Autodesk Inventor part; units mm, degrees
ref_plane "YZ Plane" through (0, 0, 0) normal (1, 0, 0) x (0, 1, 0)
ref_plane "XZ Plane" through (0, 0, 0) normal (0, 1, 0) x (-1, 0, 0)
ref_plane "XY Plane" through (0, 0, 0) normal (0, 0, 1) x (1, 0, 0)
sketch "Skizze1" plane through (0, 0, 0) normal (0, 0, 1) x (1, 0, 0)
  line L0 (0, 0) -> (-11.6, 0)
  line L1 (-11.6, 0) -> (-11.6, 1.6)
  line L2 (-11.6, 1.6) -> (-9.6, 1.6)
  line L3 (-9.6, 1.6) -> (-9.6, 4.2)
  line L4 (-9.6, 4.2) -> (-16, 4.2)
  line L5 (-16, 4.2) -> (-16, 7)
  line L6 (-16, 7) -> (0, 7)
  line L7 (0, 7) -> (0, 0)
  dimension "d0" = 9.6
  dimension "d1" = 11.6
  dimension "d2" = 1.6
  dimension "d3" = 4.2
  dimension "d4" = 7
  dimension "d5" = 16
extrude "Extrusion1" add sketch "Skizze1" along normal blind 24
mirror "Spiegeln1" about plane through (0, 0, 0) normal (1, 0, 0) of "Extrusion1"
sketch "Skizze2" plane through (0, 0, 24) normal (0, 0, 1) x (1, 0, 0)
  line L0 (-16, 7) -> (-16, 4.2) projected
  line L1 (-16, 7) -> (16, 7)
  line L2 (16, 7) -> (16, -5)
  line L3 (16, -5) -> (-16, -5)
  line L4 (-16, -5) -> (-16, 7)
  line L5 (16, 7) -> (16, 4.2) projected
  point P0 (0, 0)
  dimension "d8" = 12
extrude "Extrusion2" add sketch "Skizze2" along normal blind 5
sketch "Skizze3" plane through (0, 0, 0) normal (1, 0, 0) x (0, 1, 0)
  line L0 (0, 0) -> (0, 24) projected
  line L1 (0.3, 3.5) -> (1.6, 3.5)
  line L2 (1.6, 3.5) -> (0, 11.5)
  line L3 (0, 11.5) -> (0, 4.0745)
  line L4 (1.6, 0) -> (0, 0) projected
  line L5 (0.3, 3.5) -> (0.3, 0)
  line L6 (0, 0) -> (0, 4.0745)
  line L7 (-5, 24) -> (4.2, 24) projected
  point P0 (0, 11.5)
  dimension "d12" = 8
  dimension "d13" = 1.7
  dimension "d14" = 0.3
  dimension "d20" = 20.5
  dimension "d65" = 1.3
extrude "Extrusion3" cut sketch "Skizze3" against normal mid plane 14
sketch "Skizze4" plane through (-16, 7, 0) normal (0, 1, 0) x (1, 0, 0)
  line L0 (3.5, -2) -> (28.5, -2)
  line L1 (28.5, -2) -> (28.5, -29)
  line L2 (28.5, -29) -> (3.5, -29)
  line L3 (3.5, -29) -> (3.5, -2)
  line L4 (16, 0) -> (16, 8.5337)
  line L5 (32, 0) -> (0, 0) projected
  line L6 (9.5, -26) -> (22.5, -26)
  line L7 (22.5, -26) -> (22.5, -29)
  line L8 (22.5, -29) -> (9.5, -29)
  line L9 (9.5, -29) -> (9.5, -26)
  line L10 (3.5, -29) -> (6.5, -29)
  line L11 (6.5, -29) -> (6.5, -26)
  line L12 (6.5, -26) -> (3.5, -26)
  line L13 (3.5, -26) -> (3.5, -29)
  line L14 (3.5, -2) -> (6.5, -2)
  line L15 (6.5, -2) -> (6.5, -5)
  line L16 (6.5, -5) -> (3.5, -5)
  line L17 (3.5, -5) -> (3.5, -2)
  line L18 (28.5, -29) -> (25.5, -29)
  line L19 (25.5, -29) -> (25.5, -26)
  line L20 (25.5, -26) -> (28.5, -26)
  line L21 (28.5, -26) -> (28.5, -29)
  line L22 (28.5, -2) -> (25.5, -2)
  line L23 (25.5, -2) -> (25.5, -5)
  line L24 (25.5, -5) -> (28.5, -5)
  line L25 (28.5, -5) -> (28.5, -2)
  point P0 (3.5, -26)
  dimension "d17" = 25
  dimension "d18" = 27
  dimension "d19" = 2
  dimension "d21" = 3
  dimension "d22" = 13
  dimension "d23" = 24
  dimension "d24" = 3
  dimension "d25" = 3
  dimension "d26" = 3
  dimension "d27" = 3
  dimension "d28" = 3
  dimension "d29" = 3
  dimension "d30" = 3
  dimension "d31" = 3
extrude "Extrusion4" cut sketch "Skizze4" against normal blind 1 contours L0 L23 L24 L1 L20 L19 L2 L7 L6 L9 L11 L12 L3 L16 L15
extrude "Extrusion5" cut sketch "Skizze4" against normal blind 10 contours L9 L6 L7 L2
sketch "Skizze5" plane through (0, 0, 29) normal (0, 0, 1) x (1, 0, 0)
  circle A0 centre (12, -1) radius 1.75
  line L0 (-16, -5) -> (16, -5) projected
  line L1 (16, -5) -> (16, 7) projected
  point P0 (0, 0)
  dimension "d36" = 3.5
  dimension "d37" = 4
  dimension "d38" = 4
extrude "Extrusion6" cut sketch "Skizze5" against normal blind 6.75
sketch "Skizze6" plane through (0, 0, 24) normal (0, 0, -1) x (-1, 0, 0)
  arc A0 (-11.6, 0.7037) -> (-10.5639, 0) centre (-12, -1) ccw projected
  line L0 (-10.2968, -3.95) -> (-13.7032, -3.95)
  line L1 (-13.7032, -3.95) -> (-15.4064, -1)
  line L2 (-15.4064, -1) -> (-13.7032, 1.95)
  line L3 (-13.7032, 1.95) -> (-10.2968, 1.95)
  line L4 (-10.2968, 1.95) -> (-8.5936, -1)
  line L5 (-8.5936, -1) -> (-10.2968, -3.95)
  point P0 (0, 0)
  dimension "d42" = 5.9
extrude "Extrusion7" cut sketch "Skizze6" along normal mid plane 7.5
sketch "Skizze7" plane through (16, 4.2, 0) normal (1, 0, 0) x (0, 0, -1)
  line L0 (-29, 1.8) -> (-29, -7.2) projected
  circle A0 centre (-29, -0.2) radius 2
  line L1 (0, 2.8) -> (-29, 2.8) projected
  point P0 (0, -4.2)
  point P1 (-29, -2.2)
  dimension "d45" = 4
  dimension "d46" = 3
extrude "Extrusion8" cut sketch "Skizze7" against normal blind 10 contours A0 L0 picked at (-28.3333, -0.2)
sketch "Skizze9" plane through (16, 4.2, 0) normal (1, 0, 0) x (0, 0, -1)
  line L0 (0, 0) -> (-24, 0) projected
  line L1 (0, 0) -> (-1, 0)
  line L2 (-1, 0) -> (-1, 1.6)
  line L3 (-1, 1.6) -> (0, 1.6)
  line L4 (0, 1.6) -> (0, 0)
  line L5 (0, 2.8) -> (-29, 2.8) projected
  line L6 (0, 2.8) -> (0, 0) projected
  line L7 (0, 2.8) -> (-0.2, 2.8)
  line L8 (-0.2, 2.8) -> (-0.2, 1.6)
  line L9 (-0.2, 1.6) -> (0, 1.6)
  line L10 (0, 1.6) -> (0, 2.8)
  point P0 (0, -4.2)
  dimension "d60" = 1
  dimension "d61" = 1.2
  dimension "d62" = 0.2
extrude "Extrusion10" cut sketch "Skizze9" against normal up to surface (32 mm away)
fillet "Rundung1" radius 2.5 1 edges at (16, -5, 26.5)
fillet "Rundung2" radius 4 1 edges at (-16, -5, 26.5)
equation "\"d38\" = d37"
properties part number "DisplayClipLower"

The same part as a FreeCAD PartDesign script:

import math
import FreeCAD as App
import Part
import Sketcher
Q = App.Units.Quantity


def edges_at(feature, points):
    """Names of the edges that pass closest to the given points."""
    edges = feature.Shape.Edges
    near = lambda p: min(range(len(edges)), key=lambda i: edges[i].distToShape(Part.Vertex(*p))[0])
    return sorted({f"Edge{near(p) + 1}" for p in points})

doc = App.newDocument("Part")
body = doc.addObject("PartDesign::Body", "Body")

# Sketch on XY plane
sketch1 = body.newObject("Sketcher::SketchObject", "Sketch")
sketch1.AttachmentSupport = (doc.getObject("XY_Plane"), [""])
sketch1.MapMode = "FlatFace"
sketch1.addGeometry([
    Part.LineSegment(App.Vector(-11.6, 0, 0), App.Vector(0, 0, 0)),  # 0
    Part.LineSegment(App.Vector(0, 0, 0), App.Vector(0, 7, 0)),  # 1
    Part.LineSegment(App.Vector(0, 7, 0), App.Vector(-16, 7, 0)),  # 2
    Part.LineSegment(App.Vector(-16, 7, 0), App.Vector(-16, 4.2, 0)),  # 3
    Part.LineSegment(App.Vector(-16, 4.2, 0), App.Vector(-9.6, 4.2, 0)),  # 4
    Part.LineSegment(App.Vector(-9.6, 4.2, 0), App.Vector(-9.6, 1.6, 0)),  # 5
    Part.LineSegment(App.Vector(-9.6, 1.6, 0), App.Vector(-11.6, 1.6, 0)),  # 6
    Part.LineSegment(App.Vector(-11.6, 1.6, 0), App.Vector(-11.6, 0, 0)),  # 7
], False)
sketch1.addConstraint([
    Sketcher.Constraint("Coincident", 0, 2, 1, 1),
    Sketcher.Constraint("Coincident", 1, 2, 2, 1),
    Sketcher.Constraint("Coincident", 2, 2, 3, 1),
    Sketcher.Constraint("Coincident", 3, 2, 4, 1),
    Sketcher.Constraint("Coincident", 4, 2, 5, 1),
    Sketcher.Constraint("Coincident", 5, 2, 6, 1),
    Sketcher.Constraint("Coincident", 6, 2, 7, 1),
    Sketcher.Constraint("Coincident", 7, 2, 0, 1),
    Sketcher.Constraint("Horizontal", 0),
    Sketcher.Constraint("Vertical", 1),
    Sketcher.Constraint("Horizontal", 2),
    Sketcher.Constraint("Vertical", 3),
    Sketcher.Constraint("Horizontal", 4),
    Sketcher.Constraint("Vertical", 5),
    Sketcher.Constraint("Horizontal", 6),
    Sketcher.Constraint("Vertical", 7),
    Sketcher.Constraint("Coincident", 0, 2, -1, 1),
    Sketcher.Constraint("DistanceX", 2, 2, 2, 1, Q("16 mm")),
    Sketcher.Constraint("DistanceY", 1, 1, 1, 2, Q("7 mm")),
    Sketcher.Constraint("DistanceX", 0, 1, 0, 2, Q("11.6 mm")),
    Sketcher.Constraint("DistanceY", 7, 2, 7, 1, Q("1.6 mm")),
    Sketcher.Constraint("DistanceY", -1, 1, 3, 2, Q("4.2 mm")),
    Sketcher.Constraint("DistanceX", 4, 2, -1, 1, Q("9.6 mm")),
])
pad1 = body.newObject("PartDesign::Pad", "Pad")
pad1.Profile = sketch1
pad1.Length = 24
doc.recompute()

mirrored = body.newObject("PartDesign::Mirrored", "Mirrored")
mirrored.Originals = [pad1]
mirrored.MirrorPlane = (doc.getObject("YZ_Plane"), [""])
body.Tip = mirrored

# Sketch on XY plane
sketch2 = body.newObject("Sketcher::SketchObject", "Sketch001")
sketch2.AttachmentSupport = (doc.getObject("XY_Plane"), [""])
sketch2.MapMode = "FlatFace"
sketch2.AttachmentOffset = App.Placement(App.Vector(0, 0, 24), App.Rotation())
sketch2.addGeometry([
    Part.LineSegment(App.Vector(16, 7, 0), App.Vector(-16, 7, 0)),
    Part.LineSegment(App.Vector(-16, 7, 0), App.Vector(-16, -5, 0)),
    Part.LineSegment(App.Vector(-16, -5, 0), App.Vector(16, -5, 0)),
    Part.LineSegment(App.Vector(16, -5, 0), App.Vector(16, 7, 0)),
], False)
sketch2.addConstraint([
    Sketcher.Constraint("Coincident", 0, 2, 1, 1),
    Sketcher.Constraint("Coincident", 1, 2, 2, 1),
    Sketcher.Constraint("Coincident", 2, 2, 3, 1),
    Sketcher.Constraint("Coincident", 3, 2, 0, 1),
    Sketcher.Constraint("Horizontal", 0),
    Sketcher.Constraint("Vertical", 1),
    Sketcher.Constraint("Horizontal", 2),
    Sketcher.Constraint("Vertical", 3),
    Sketcher.Constraint("DistanceY", 1, 2, 1, 1, Q("12 mm")),
    Sketcher.Constraint("DistanceX", 0, 2, 0, 1, Q("32 mm")),
    Sketcher.Constraint("DistanceX", 0, 2, -1, 1, Q("16 mm")),
    Sketcher.Constraint("DistanceY", -1, 1, 0, 2, Q("7 mm")),
])
pad2 = body.newObject("PartDesign::Pad", "Pad001")
pad2.Profile = sketch2
pad2.Length = 5

# Sketch on YZ plane
sketch3 = body.newObject("Sketcher::SketchObject", "Sketch002")
sketch3.AttachmentSupport = (doc.getObject("YZ_Plane"), [""])
sketch3.MapMode = "FlatFace"
sketch3.addGeometry([
    Part.LineSegment(App.Vector(0, 11.5, 0), App.Vector(0, 0, 0)),  # 0
    Part.LineSegment(App.Vector(0, 0, 0), App.Vector(0.3, 0, 0)),  # 1
    Part.LineSegment(App.Vector(0.3, 0, 0), App.Vector(0.3, 3.5, 0)),  # 2
    Part.LineSegment(App.Vector(0.3, 3.5, 0), App.Vector(1.6, 3.5, 0)),  # 3
    Part.LineSegment(App.Vector(1.6, 3.5, 0), App.Vector(0, 11.5, 0)),  # 4
], False)
sketch3.addConstraint([
    Sketcher.Constraint("Coincident", 0, 2, 1, 1),
    Sketcher.Constraint("Coincident", 1, 2, 2, 1),
    Sketcher.Constraint("Coincident", 2, 2, 3, 1),
    Sketcher.Constraint("Coincident", 3, 2, 4, 1),
    Sketcher.Constraint("Coincident", 4, 2, 0, 1),
    Sketcher.Constraint("Vertical", 0),
    Sketcher.Constraint("Horizontal", 1),
    Sketcher.Constraint("Vertical", 2),
    Sketcher.Constraint("Horizontal", 3),
    Sketcher.Constraint("Coincident", 0, 2, -1, 1),
    Sketcher.Constraint("DistanceX", 1, 1, 1, 2, Q("0.3 mm")),
    Sketcher.Constraint("DistanceX", 3, 1, 3, 2, Q("1.3 mm")),
    Sketcher.Constraint("DistanceY", 2, 2, 4, 2, Q("8 mm")),
    Sketcher.Constraint("DistanceY", 0, 2, 0, 1, Q("11.5 mm")),
])
pocket1 = body.newObject("PartDesign::Pocket", "Pocket")
pocket1.Profile = sketch3
pocket1.Length = 14
pocket1.Midplane = True

# Sketch on XZ plane
sketch4 = body.newObject("Sketcher::SketchObject", "Sketch003")
sketch4.AttachmentSupport = (doc.getObject("XZ_Plane"), [""])
sketch4.MapMode = "FlatFace"
sketch4.AttachmentOffset = App.Placement(App.Vector(0, 0, -7), App.Rotation())
sketch4.addGeometry([
    Part.LineSegment(App.Vector(9.5, 2, 0), App.Vector(-9.5, 2, 0)),  # 0
    Part.LineSegment(App.Vector(-9.5, 2, 0), App.Vector(-9.5, 5, 0)),  # 1
    Part.LineSegment(App.Vector(-9.5, 5, 0), App.Vector(-12.5, 5, 0)),  # 2
    Part.LineSegment(App.Vector(-12.5, 5, 0), App.Vector(-12.5, 26, 0)),  # 3
    Part.LineSegment(App.Vector(-12.5, 26, 0), App.Vector(-9.5, 26, 0)),  # 4
    Part.LineSegment(App.Vector(-9.5, 26, 0), App.Vector(-9.5, 29, 0)),  # 5
    Part.LineSegment(App.Vector(-9.5, 29, 0), App.Vector(-6.5, 29, 0)),  # 6
    Part.LineSegment(App.Vector(-6.5, 29, 0), App.Vector(-6.5, 26, 0)),  # 7
    Part.LineSegment(App.Vector(-6.5, 26, 0), App.Vector(6.5, 26, 0)),  # 8
    Part.LineSegment(App.Vector(6.5, 26, 0), App.Vector(6.5, 29, 0)),  # 9
    Part.LineSegment(App.Vector(6.5, 29, 0), App.Vector(9.5, 29, 0)),  # 10
    Part.LineSegment(App.Vector(9.5, 29, 0), App.Vector(9.5, 26, 0)),  # 11
    Part.LineSegment(App.Vector(9.5, 26, 0), App.Vector(12.5, 26, 0)),  # 12
    Part.LineSegment(App.Vector(12.5, 26, 0), App.Vector(12.5, 5, 0)),  # 13
    Part.LineSegment(App.Vector(12.5, 5, 0), App.Vector(9.5, 5, 0)),  # 14
    Part.LineSegment(App.Vector(9.5, 5, 0), App.Vector(9.5, 2, 0)),  # 15
], False)
sketch4.addConstraint([
    Sketcher.Constraint("Coincident", 0, 2, 1, 1),
    Sketcher.Constraint("Coincident", 1, 2, 2, 1),
    Sketcher.Constraint("Coincident", 2, 2, 3, 1),
    Sketcher.Constraint("Coincident", 3, 2, 4, 1),
    Sketcher.Constraint("Coincident", 4, 2, 5, 1),
    Sketcher.Constraint("Coincident", 5, 2, 6, 1),
    Sketcher.Constraint("Coincident", 6, 2, 7, 1),
    Sketcher.Constraint("Coincident", 7, 2, 8, 1),
    Sketcher.Constraint("Coincident", 8, 2, 9, 1),
    Sketcher.Constraint("Coincident", 9, 2, 10, 1),
    Sketcher.Constraint("Coincident", 10, 2, 11, 1),
    Sketcher.Constraint("Coincident", 11, 2, 12, 1),
    Sketcher.Constraint("Coincident", 12, 2, 13, 1),
    Sketcher.Constraint("Coincident", 13, 2, 14, 1),
    Sketcher.Constraint("Coincident", 14, 2, 15, 1),
    Sketcher.Constraint("Coincident", 15, 2, 0, 1),
    Sketcher.Constraint("Horizontal", 0),
    Sketcher.Constraint("Vertical", 1),
    Sketcher.Constraint("Horizontal", 2),
    Sketcher.Constraint("Vertical", 3),
    Sketcher.Constraint("Horizontal", 4),
    Sketcher.Constraint("Vertical", 5),
    Sketcher.Constraint("Horizontal", 6),
    Sketcher.Constraint("Vertical", 7),
    Sketcher.Constraint("Horizontal", 8),
    Sketcher.Constraint("Vertical", 9),
    Sketcher.Constraint("Horizontal", 10),
    Sketcher.Constraint("Vertical", 11),
    Sketcher.Constraint("Horizontal", 12),
    Sketcher.Constraint("Vertical", 13),
    Sketcher.Constraint("Horizontal", 14),
    Sketcher.Constraint("Vertical", 15),
    Sketcher.Constraint("Symmetric", 6, 2, 9, 2, -2),
    Sketcher.Constraint("Symmetric", 4, 2, 11, 2, -2),
    Sketcher.Constraint("Symmetric", 2, 2, 13, 2, -2),
    Sketcher.Constraint("Horizontal", 4, 2, 7, 2),
    Sketcher.Constraint("Vertical", 1, 2, 4, 2),
    Sketcher.Constraint("Vertical", 11, 2, 14, 2),
    Sketcher.Constraint("Equal", 4, 6),
    Sketcher.Constraint("Equal", 14, 1),
    Sketcher.Constraint("Equal", 1, 5),
    Sketcher.Constraint("DistanceX", 2, 2, 2, 1, Q("3 mm")),
    Sketcher.Constraint("DistanceX", 8, 1, 8, 2, Q("13 mm")),
    Sketcher.Constraint("DistanceY", -1, 1, 0, 2, Q("2 mm")),
    Sketcher.Constraint("DistanceY", 0, 2, 3, 2, Q("24 mm")),
])
pocket2 = body.newObject("PartDesign::Pocket", "Pocket001")
pocket2.Profile = sketch4
pocket2.Length = 1
pocket2.Reversed = True

# Sketch on XZ plane
sketch5 = body.newObject("Sketcher::SketchObject", "Sketch004")
sketch5.AttachmentSupport = (doc.getObject("XZ_Plane"), [""])
sketch5.MapMode = "FlatFace"
sketch5.AttachmentOffset = App.Placement(App.Vector(0, 0, -7), App.Rotation())
sketch5.addGeometry([
    Part.LineSegment(App.Vector(-6.5, 26, 0), App.Vector(-6.5, 29, 0)),
    Part.LineSegment(App.Vector(-6.5, 29, 0), App.Vector(6.5, 29, 0)),
    Part.LineSegment(App.Vector(6.5, 29, 0), App.Vector(6.5, 26, 0)),
    Part.LineSegment(App.Vector(6.5, 26, 0), App.Vector(-6.5, 26, 0)),
], False)
sketch5.addConstraint([
    Sketcher.Constraint("Coincident", 0, 2, 1, 1),
    Sketcher.Constraint("Coincident", 1, 2, 2, 1),
    Sketcher.Constraint("Coincident", 2, 2, 3, 1),
    Sketcher.Constraint("Coincident", 3, 2, 0, 1),
    Sketcher.Constraint("Vertical", 0),
    Sketcher.Constraint("Horizontal", 1),
    Sketcher.Constraint("Vertical", 2),
    Sketcher.Constraint("Horizontal", 3),
    Sketcher.Constraint("DistanceX", 1, 1, 1, 2, Q("13 mm")),
    Sketcher.Constraint("DistanceY", 0, 1, 0, 2, Q("3 mm")),
    Sketcher.Constraint("DistanceY", -1, 1, 0, 2, Q("29 mm")),
    Sketcher.Constraint("DistanceX", 0, 2, -1, 1, Q("6.5 mm")),
])
pocket3 = body.newObject("PartDesign::Pocket", "Pocket002")
pocket3.Profile = sketch5
pocket3.Length = 10
pocket3.Reversed = True

# Sketch on XY plane
sketch6 = body.newObject("Sketcher::SketchObject", "Sketch005")
sketch6.AttachmentSupport = (doc.getObject("XY_Plane"), [""])
sketch6.MapMode = "FlatFace"
sketch6.AttachmentOffset = App.Placement(App.Vector(0, 0, 29), App.Rotation())
sketch6.addGeometry(Part.Circle(App.Vector(12, -1, 0), App.Vector(0, 0, 1), 1.75), False)
sketch6.addConstraint([
    Sketcher.Constraint("Diameter", 0, Q("3.5 mm")),
    Sketcher.Constraint("DistanceX", -1, 1, 0, 3, Q("12 mm")),
    Sketcher.Constraint("DistanceY", 0, 3, -1, 1, Q("1 mm")),
])
pocket4 = body.newObject("PartDesign::Pocket", "Pocket003")
pocket4.Profile = sketch6
pocket4.Length = 6.75

# Sketch on XY plane
sketch7 = body.newObject("Sketcher::SketchObject", "Sketch006")
sketch7.AttachmentSupport = (doc.getObject("XY_Plane"), [""])
sketch7.MapMode = "FlatFace"
sketch7.AttachmentOffset = App.Placement(App.Vector(0, 0, 24), App.Rotation())
sketch7.addGeometry([
    Part.LineSegment(App.Vector(13.7032, -3.95, 0), App.Vector(10.2968, -3.95, 0)),  # 0
    Part.LineSegment(App.Vector(10.2968, -3.95, 0), App.Vector(8.5936, -1, 0)),  # 1
    Part.LineSegment(App.Vector(8.5936, -1, 0), App.Vector(10.2968, 1.95, 0)),  # 2
    Part.LineSegment(App.Vector(10.2968, 1.95, 0), App.Vector(13.7032, 1.95, 0)),  # 3
    Part.LineSegment(App.Vector(13.7032, 1.95, 0), App.Vector(15.4064, -1, 0)),  # 4
    Part.LineSegment(App.Vector(15.4064, -1, 0), App.Vector(13.7032, -3.95, 0)),  # 5
], False)
sketch7.addConstraint([
    Sketcher.Constraint("Coincident", 0, 2, 1, 1),
    Sketcher.Constraint("Coincident", 1, 2, 2, 1),
    Sketcher.Constraint("Coincident", 2, 2, 3, 1),
    Sketcher.Constraint("Coincident", 3, 2, 4, 1),
    Sketcher.Constraint("Coincident", 4, 2, 5, 1),
    Sketcher.Constraint("Coincident", 5, 2, 0, 1),
    Sketcher.Constraint("Horizontal", 0),
    Sketcher.Constraint("Horizontal", 3),
    Sketcher.Constraint("Parallel", 1, 4),
    Sketcher.Constraint("Parallel", 2, 5),
    Sketcher.Constraint("Horizontal", 1, 2, 4, 2),
    Sketcher.Constraint("Vertical", 0, 2, 2, 2),
    Sketcher.Constraint("Vertical", 3, 2, 5, 2),
    Sketcher.Constraint("DistanceY", 0, 2, 2, 2, Q("5.9 mm")),
    Sketcher.Constraint("Angle", 1, Q("120.0002 deg")),
    Sketcher.Constraint("DistanceY", 1, 2, -1, 1, Q("1 mm")),
    Sketcher.Constraint("DistanceX", 0, 2, 0, 1, Q("3.4064 mm")),
    Sketcher.Constraint("DistanceX", -1, 1, 0, 2, Q("10.2968 mm")),
])
pocket5 = body.newObject("PartDesign::Pocket", "Pocket004")
pocket5.Profile = sketch7
pocket5.Length = 7.5
pocket5.Midplane = True

# Sketch on YZ plane
sketch8 = body.newObject("Sketcher::SketchObject", "Sketch007")
sketch8.AttachmentSupport = (doc.getObject("YZ_Plane"), [""])
sketch8.MapMode = "FlatFace"
sketch8.AttachmentOffset = App.Placement(App.Vector(0, 0, 16), App.Rotation())
sketch8.addGeometry([
    Part.ArcOfCircle(Part.Circle(App.Vector(4, 29, 0), App.Vector(0, 0, 1), 2), math.radians(180), math.radians(360)),
    Part.LineSegment(App.Vector(6, 29, 0), App.Vector(2, 29, 0)),
], False)
sketch8.addConstraint([
    Sketcher.Constraint("Coincident", 0, 1, 1, 2),
    Sketcher.Constraint("Coincident", 1, 1, 0, 2),
    Sketcher.Constraint("Horizontal", 1),
    Sketcher.Constraint("Radius", 0, Q("2 mm")),
    Sketcher.Constraint("DistanceX", -1, 1, 0, 3, Q("4 mm")),
    Sketcher.Constraint("DistanceY", -1, 1, 0, 3, Q("29 mm")),
    Sketcher.Constraint("DistanceY", -1, 1, 0, 1, Q("29 mm")),
])
pocket6 = body.newObject("PartDesign::Pocket", "Pocket005")
pocket6.Profile = sketch8
pocket6.Length = 10

# Sketch on YZ plane
sketch9 = body.newObject("Sketcher::SketchObject", "Sketch008")
sketch9.AttachmentSupport = (doc.getObject("YZ_Plane"), [""])
sketch9.MapMode = "FlatFace"
sketch9.AttachmentOffset = App.Placement(App.Vector(0, 0, 16), App.Rotation())
sketch9.addGeometry([
    Part.LineSegment(App.Vector(4.2, 1, 0), App.Vector(4.2, 0, 0)),  # 0
    Part.LineSegment(App.Vector(4.2, 0, 0), App.Vector(7, 0, 0)),  # 1
    Part.LineSegment(App.Vector(7, 0, 0), App.Vector(7, 0.2, 0)),  # 2
    Part.LineSegment(App.Vector(7, 0.2, 0), App.Vector(5.8, 0.2, 0)),  # 3
    Part.LineSegment(App.Vector(5.8, 0.2, 0), App.Vector(5.8, 1, 0)),  # 4
    Part.LineSegment(App.Vector(5.8, 1, 0), App.Vector(4.2, 1, 0)),  # 5
], False)
sketch9.addConstraint([
    Sketcher.Constraint("Coincident", 0, 2, 1, 1),
    Sketcher.Constraint("Coincident", 1, 2, 2, 1),
    Sketcher.Constraint("Coincident", 2, 2, 3, 1),
    Sketcher.Constraint("Coincident", 3, 2, 4, 1),
    Sketcher.Constraint("Coincident", 4, 2, 5, 1),
    Sketcher.Constraint("Coincident", 5, 2, 0, 1),
    Sketcher.Constraint("Vertical", 0),
    Sketcher.Constraint("Horizontal", 1),
    Sketcher.Constraint("Vertical", 2),
    Sketcher.Constraint("Horizontal", 3),
    Sketcher.Constraint("Vertical", 4),
    Sketcher.Constraint("Horizontal", 5),
    Sketcher.Constraint("PointOnObject", 0, 2, -1),
    Sketcher.Constraint("DistanceY", 0, 2, 0, 1, Q("1 mm")),
    Sketcher.Constraint("DistanceX", 3, 2, 3, 1, Q("1.2 mm")),
    Sketcher.Constraint("DistanceY", 2, 1, 2, 2, Q("0.2 mm")),
    Sketcher.Constraint("DistanceX", 1, 1, 1, 2, Q("2.8 mm")),
    Sketcher.Constraint("DistanceX", -1, 1, 1, 2, Q("7 mm")),
])
pocket7 = body.newObject("PartDesign::Pocket", "Pocket006")
pocket7.Profile = sketch9
pocket7.Length = 32
doc.recompute()

fillet = body.newObject("PartDesign::Fillet", "Fillet")
fillet.Base = (pocket7, edges_at(pocket7, [(16, -5, 26.5)]))
fillet.Radius = 2.5
doc.recompute()

fillet2 = body.newObject("PartDesign::Fillet", "Fillet001")
fillet2.Base = (fillet, edges_at(fillet, [(-16, -5, 26.5)]))
fillet2.Radius = 4

doc.recompute()
